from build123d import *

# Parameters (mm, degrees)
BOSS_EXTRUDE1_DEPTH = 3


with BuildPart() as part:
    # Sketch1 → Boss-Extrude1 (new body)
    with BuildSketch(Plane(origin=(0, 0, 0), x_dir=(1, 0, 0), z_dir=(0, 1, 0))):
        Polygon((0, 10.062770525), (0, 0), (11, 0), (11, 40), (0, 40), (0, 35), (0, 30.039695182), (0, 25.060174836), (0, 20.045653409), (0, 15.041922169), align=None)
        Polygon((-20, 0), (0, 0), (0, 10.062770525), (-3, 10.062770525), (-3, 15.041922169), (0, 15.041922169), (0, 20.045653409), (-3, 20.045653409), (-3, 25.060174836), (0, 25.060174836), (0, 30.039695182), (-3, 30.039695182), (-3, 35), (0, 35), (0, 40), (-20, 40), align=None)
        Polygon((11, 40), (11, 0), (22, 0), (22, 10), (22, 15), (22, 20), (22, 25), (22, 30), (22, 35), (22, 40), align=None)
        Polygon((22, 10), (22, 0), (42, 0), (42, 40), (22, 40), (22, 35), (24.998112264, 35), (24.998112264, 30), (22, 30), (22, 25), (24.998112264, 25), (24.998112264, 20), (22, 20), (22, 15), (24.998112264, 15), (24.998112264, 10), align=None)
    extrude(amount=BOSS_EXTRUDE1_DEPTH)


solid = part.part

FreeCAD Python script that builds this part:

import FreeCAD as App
import Part
import Sketcher
from FreeCAD import Vector


def add_polygon(sketch, points):
    """Adds a closed chain of lines whose ends are joined by coincident constraints."""
    first, n = sketch.GeometryCount, len(points)
    for a, b in zip(points, points[1:] + points[:1]):
        sketch.addGeometry(Part.LineSegment(App.Vector(*a, 0), App.Vector(*b, 0)), False)
    for i in range(n):
        sketch.addConstraint(Sketcher.Constraint("Coincident", first + i, 2, first + (i + 1) % n, 1))

doc = App.newDocument("Part")
params = doc.addObject("Spreadsheet::Sheet", "Params")
for row, (alias, value) in enumerate([
    ("sketch1_width", "62 mm"),
    ("sketch1_width2", "3 mm"),
    ("sketch1_height", "40 mm"),
    ("sketch1_height2", "5 mm"),
    ("pad1_length", "3 mm"),
], start=1):
    params.set(f"A{row}", alias)
    params.set(f"B{row}", "=" + value)
    params.setAlias(f"B{row}", alias)

body = doc.addObject("PartDesign::Body", "Body")

# Sketch on XZ plane
sketch1 = body.newObject("Sketcher::SketchObject", "Sketch")
sketch1.AttachmentSupport = (doc.getObject("XZ_Plane"), [""])
sketch1.MapMode = "FlatFace"
add_polygon(sketch1, [(-20, -40), (-20, 0), (42, 0), (42, -40)])  # lines 0-3
add_polygon(sketch1, [(22, -10), (22, -15), (25, -15), (25, -10)])  # lines 4-7
add_polygon(sketch1, [(22, -20), (22, -25), (25, -25), (25, -20)])  # lines 8-11
add_polygon(sketch1, [(22, -30), (22, -35), (25, -35), (25, -30)])  # lines 12-15
add_polygon(sketch1, [(0, -35), (0, -30), (-3, -30), (-3, -35)])  # lines 16-19
add_polygon(sketch1, [(0, -25.1), (0, -20), (-3, -20), (-3, -25.1)])  # lines 20-23
add_polygon(sketch1, [(0, -15), (0, -10.1), (-3, -10.1), (-3, -15)])  # lines 24-27
sketch1.addConstraint([
    Sketcher.Constraint("Vertical", 0),
    Sketcher.Constraint("Horizontal", 1),
    Sketcher.Constraint("Vertical", 2),
    Sketcher.Constraint("Horizontal", 3),
    Sketcher.Constraint("Vertical", 4),
    Sketcher.Constraint("Horizontal", 5),
    Sketcher.Constraint("Vertical", 6),
    Sketcher.Constraint("Horizontal", 7),
    Sketcher.Constraint("Vertical", 8),
    Sketcher.Constraint("Horizontal", 9),
    Sketcher.Constraint("Vertical", 10),
    Sketcher.Constraint("Horizontal", 11),
    Sketcher.Constraint("Vertical", 12),
    Sketcher.Constraint("Horizontal", 13),
    Sketcher.Constraint("Vertical", 14),
    Sketcher.Constraint("Horizontal", 15),
    Sketcher.Constraint("Vertical", 16),
    Sketcher.Constraint("Horizontal", 17),
    Sketcher.Constraint("Vertical", 18),
    Sketcher.Constraint("Horizontal", 19),
    Sketcher.Constraint("Vertical", 20),
    Sketcher.Constraint("Horizontal", 21),
    Sketcher.Constraint("Vertical", 22),
    Sketcher.Constraint("Horizontal", 23),
    Sketcher.Constraint("Vertical", 24),
    Sketcher.Constraint("Horizontal", 25),
    Sketcher.Constraint("Vertical", 26),
    Sketcher.Constraint("Horizontal", 27),
    Sketcher.Constraint("PointOnObject", 0, 2, -1),
    Sketcher.Constraint("PointOnObject", 16, 2, -2),
    Sketcher.Constraint("PointOnObject", 20, 2, -2),
    Sketcher.Constraint("PointOnObject", 24, 2, -2),
    Sketcher.Constraint("Horizontal", 13, 2, 18, 2),
    Sketcher.Constraint("Vertical", 7, 2, 8, 2),
    Sketcher.Constraint("Vertical", 6, 2, 9, 2),
    Sketcher.Constraint("Vertical", 11, 2, 12, 2),
    Sketcher.Constraint("Vertical", 10, 2, 13, 2),
    Sketcher.Constraint("Vertical", 18, 2, 21, 2),
    Sketcher.Constraint("Vertical", 22, 2, 25, 2),
    Sketcher.Constraint("Equal", 6, 8),
    Sketcher.Constraint("Equal", 10, 12),
    Sketcher.Constraint("DistanceX", 1, 1, 1, 2, 62.0),
    Sketcher.Constraint("DistanceX", 17, 2, 17, 1, 3.0),
    Sketcher.Constraint("DistanceY", 0, 1, 0, 2, 40.0),
    Sketcher.Constraint("DistanceY", 4, 2, 4, 1, 5.0),
    Sketcher.Constraint("DistanceX", 0, 2, -1, 1, 20.0),
    Sketcher.Constraint("DistanceX", -1, 1, 4, 2, 22.0),
    Sketcher.Constraint("DistanceY", 4, 2, -1, 1, 15.0),
    Sketcher.Constraint("DistanceY", 8, 2, -1, 1, 25.0),
    Sketcher.Constraint("DistanceY", 12, 2, -1, 1, 35.0),
    Sketcher.Constraint("DistanceY", 20, 1, 20, 2, 5.014521),
    Sketcher.Constraint("DistanceY", 24, 1, 24, 2, 4.979152),
    Sketcher.Constraint("DistanceX", 5, 1, 5, 2, 2.998112),
    Sketcher.Constraint("DistanceY", 16, 1, 16, 2, 4.960305),
    Sketcher.Constraint("DistanceY", 24, 2, -1, 1, 10.062771),
    Sketcher.Constraint("DistanceY", 16, 2, 20, 2, 9.994042),
])
sketch1.setExpression("Constraints[69]", "Params.sketch1_width")
sketch1.setExpression("Constraints[70]", "Params.sketch1_width2")
sketch1.setExpression("Constraints[71]", "Params.sketch1_height")
sketch1.setExpression("Constraints[72]", "Params.sketch1_height2")
pad1 = body.newObject("PartDesign::Pad", "Pad")
pad1.Profile = sketch1
pad1.setExpression("Length", "Params.pad1_length")
pad1.Reversed = True

doc.recompute()
